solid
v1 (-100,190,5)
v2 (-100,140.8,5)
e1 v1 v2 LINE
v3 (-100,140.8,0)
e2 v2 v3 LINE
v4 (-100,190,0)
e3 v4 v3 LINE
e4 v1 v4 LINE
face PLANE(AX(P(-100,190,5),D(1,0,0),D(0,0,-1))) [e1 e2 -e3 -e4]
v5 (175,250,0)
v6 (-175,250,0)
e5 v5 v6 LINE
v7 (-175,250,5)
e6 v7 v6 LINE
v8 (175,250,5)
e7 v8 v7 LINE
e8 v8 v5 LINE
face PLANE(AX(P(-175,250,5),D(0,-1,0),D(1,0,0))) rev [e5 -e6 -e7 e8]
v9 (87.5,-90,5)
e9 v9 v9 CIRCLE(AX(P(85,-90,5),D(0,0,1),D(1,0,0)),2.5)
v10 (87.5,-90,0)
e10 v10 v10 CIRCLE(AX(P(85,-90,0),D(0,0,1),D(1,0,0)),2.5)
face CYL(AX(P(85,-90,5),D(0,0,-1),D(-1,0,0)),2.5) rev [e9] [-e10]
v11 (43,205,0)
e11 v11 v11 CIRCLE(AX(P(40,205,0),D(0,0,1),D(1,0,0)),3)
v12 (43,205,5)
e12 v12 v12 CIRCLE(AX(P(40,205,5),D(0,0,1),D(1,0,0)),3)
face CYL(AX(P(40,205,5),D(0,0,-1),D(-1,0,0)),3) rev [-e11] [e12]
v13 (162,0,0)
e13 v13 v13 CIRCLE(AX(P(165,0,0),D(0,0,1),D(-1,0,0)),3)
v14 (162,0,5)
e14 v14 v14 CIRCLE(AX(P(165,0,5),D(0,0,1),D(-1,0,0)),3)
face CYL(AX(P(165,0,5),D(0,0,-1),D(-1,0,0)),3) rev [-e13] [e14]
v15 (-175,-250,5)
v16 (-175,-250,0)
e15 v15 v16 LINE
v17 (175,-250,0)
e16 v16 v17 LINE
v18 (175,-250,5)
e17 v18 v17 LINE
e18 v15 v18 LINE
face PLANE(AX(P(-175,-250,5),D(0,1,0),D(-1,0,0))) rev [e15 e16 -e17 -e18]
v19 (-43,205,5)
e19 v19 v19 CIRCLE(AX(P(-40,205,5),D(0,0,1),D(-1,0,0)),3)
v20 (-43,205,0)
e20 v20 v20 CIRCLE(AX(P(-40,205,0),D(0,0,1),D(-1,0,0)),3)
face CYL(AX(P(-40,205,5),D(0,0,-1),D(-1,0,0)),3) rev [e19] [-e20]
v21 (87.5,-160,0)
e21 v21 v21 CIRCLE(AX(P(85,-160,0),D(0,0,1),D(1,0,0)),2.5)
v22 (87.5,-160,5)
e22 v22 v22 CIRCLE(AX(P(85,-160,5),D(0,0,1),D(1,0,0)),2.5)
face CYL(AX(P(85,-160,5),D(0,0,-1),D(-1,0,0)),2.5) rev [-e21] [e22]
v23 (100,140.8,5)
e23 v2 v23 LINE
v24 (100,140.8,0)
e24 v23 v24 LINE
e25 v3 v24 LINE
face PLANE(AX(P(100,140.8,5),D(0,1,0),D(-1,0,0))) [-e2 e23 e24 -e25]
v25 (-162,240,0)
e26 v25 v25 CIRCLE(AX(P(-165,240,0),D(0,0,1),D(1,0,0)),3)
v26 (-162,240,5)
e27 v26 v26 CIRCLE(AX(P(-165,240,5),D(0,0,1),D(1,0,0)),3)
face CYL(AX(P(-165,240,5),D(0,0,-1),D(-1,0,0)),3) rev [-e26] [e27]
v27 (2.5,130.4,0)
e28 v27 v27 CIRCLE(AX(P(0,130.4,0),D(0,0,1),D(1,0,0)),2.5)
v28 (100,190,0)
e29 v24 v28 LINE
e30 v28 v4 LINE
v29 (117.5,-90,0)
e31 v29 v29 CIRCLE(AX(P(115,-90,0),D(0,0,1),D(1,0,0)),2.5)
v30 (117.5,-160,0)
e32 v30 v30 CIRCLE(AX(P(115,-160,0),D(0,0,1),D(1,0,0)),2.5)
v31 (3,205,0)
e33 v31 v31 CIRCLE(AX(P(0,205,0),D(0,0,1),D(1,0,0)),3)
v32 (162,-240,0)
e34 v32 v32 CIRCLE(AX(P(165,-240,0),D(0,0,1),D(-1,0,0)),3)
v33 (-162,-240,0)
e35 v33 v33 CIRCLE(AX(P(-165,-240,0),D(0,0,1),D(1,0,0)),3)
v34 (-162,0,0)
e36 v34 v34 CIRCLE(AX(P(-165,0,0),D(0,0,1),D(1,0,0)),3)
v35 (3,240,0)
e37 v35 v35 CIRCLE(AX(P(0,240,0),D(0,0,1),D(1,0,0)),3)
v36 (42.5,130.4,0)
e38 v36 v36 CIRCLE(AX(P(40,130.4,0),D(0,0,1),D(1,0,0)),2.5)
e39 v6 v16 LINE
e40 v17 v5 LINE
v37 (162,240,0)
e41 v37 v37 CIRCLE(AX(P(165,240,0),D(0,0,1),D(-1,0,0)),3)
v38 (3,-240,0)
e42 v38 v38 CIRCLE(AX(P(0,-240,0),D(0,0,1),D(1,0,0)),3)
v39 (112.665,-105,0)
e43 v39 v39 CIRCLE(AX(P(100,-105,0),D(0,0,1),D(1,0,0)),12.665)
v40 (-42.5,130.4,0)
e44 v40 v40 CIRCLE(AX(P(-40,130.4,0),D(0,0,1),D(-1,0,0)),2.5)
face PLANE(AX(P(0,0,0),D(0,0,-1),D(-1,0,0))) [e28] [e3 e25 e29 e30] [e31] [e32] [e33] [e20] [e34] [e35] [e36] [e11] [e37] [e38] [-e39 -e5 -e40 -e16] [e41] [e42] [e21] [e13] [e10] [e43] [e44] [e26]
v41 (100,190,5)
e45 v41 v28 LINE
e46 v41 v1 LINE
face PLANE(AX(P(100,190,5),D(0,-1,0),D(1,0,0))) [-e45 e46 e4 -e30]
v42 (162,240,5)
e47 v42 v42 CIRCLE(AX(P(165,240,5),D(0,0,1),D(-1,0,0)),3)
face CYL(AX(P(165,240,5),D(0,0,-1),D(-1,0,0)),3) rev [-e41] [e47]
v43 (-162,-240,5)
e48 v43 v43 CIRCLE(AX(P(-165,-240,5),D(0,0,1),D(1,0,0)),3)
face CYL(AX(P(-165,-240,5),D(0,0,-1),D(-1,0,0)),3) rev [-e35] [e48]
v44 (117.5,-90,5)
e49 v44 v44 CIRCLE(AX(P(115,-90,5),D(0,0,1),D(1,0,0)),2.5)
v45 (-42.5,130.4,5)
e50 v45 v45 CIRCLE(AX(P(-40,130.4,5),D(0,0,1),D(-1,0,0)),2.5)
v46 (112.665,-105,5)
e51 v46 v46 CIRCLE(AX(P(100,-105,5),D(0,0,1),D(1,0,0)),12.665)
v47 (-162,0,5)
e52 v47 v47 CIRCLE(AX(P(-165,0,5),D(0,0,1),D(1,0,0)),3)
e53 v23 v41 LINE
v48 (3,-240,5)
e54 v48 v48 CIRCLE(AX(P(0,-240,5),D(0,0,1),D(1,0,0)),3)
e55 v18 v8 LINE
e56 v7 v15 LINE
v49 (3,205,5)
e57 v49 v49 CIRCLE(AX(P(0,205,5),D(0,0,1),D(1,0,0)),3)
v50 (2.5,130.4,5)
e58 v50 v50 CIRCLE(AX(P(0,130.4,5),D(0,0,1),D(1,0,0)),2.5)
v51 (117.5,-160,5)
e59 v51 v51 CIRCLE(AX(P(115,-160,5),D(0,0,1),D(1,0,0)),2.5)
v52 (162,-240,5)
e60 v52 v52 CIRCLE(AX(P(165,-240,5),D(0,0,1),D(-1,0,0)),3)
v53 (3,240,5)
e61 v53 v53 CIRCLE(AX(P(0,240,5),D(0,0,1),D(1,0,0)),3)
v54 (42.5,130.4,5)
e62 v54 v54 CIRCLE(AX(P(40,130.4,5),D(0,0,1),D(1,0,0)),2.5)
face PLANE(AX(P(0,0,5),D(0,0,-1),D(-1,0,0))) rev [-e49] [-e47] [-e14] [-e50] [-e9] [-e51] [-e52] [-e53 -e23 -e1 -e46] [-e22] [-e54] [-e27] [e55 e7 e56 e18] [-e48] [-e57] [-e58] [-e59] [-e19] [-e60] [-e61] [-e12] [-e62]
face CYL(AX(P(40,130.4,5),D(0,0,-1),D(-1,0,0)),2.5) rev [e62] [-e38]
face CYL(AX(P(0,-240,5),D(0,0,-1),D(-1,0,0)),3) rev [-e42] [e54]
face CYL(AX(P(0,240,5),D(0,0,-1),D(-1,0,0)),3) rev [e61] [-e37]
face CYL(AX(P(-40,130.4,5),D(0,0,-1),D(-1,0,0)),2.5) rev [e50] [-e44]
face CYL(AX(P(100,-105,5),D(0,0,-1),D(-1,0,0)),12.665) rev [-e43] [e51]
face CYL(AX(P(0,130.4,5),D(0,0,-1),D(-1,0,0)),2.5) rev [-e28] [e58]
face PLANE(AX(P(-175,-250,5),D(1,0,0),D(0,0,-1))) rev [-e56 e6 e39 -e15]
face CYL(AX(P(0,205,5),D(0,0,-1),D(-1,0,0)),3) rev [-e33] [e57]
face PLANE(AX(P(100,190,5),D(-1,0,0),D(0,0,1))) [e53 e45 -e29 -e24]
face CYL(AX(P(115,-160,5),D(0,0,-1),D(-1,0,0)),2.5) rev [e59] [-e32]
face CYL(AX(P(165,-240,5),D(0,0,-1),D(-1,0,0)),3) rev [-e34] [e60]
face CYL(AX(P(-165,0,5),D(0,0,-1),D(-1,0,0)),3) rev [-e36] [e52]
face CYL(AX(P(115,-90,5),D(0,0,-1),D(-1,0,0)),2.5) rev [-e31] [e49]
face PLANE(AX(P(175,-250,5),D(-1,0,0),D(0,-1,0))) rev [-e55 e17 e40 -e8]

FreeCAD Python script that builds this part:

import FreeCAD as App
import Part
import Sketcher
from FreeCAD import Vector

doc = App.newDocument("Part")
body = doc.addObject("PartDesign::Body", "Body")

sketch1 = body.newObject("Sketcher::SketchObject", "Sketch")
sketch1.AttachmentSupport = (doc.getObject("XY_Plane"), [""])
sketch1.MapMode = "FlatFace"
sketch1.addGeometry([
    Part.LineSegment(Vector(-175, 250, 0), Vector(-175, -250, 0)),
    Part.LineSegment(Vector(-175, -250, 0), Vector(175, -250, 0)),
    Part.LineSegment(Vector(175, -250, 0), Vector(175, 250, 0)),
    Part.LineSegment(Vector(175, 250, 0), Vector(-175, 250, 0)),
    Part.Circle(Vector(-165, -240, 0), Vector(0, 0, 1), 3),
    Part.Circle(Vector(0, -240, 0), Vector(0, 0, 1), 3),
    Part.Circle(Vector(165, -240, 0), Vector(0, 0, 1), 3),
    Part.Circle(Vector(85, -160, 0), Vector(0, 0, 1), 2.5),
    Part.Circle(Vector(115, -160, 0), Vector(0, 0, 1), 2.5),
    Part.Circle(Vector(100, -105, 0), Vector(0, 0, 1), 12.665),
    Part.Circle(Vector(85, -90, 0), Vector(0, 0, 1), 2.5),
    Part.Circle(Vector(115, -90, 0), Vector(0, 0, 1), 2.5),
    Part.Circle(Vector(-165, 0, 0), Vector(0, 0, 1), 3),
    Part.Circle(Vector(-165, 240, 0), Vector(0, 0, 1), 3),
    Part.Circle(Vector(-40, 130.4, 0), Vector(0, 0, 1), 2.5),
    Part.Circle(Vector(-40, 205, 0), Vector(0, 0, 1), 3),
    Part.Circle(Vector(165, 0, 0), Vector(0, 0, 1), 3),
    Part.Circle(Vector(0, 130.4, 0), Vector(0, 0, 1), 2.5),
    Part.Circle(Vector(40, 130.4, 0), Vector(0, 0, 1), 2.5),
    Part.LineSegment(Vector(100, 140.8, 0), Vector(-100, 140.8, 0)),
    Part.LineSegment(Vector(-100, 140.8, 0), Vector(-100, 190, 0)),
    Part.LineSegment(Vector(-100, 190, 0), Vector(100, 190, 0)),
    Part.LineSegment(Vector(100, 190, 0), Vector(100, 140.8, 0)),
    Part.Circle(Vector(0, 205, 0), Vector(0, 0, 1), 3),
    Part.Circle(Vector(40, 205, 0), Vector(0, 0, 1), 3),
    Part.Circle(Vector(0, 240, 0), Vector(0, 0, 1), 3),
    Part.Circle(Vector(165, 240, 0), Vector(0, 0, 1), 3),
], False)
sketch1.addConstraint([
    Sketcher.Constraint("Coincident", 0, 2, 1, 1),
    Sketcher.Constraint("Coincident", 1, 2, 2, 1),
    Sketcher.Constraint("Coincident", 2, 2, 3, 1),
    Sketcher.Constraint("Coincident", 3, 2, 0, 1),
    Sketcher.Constraint("Coincident", 19, 2, 20, 1),
    Sketcher.Constraint("Coincident", 20, 2, 21, 1),
    Sketcher.Constraint("Coincident", 21, 2, 22, 1),
    Sketcher.Constraint("Coincident", 22, 2, 19, 1),
    Sketcher.Constraint("Vertical", 0),
    Sketcher.Constraint("Horizontal", 1),
    Sketcher.Constraint("Vertical", 2),
    Sketcher.Constraint("Horizontal", 3),
    Sketcher.Constraint("Horizontal", 19),
    Sketcher.Constraint("Vertical", 20),
    Sketcher.Constraint("Horizontal", 21),
    Sketcher.Constraint("Vertical", 22),
    Sketcher.Constraint("Equal", 4, 5),
    Sketcher.Constraint("Equal", 5, 6),
    Sketcher.Constraint("Equal", 7, 8),
    Sketcher.Constraint("Equal", 8, 10),
    Sketcher.Constraint("Equal", 10, 11),
    Sketcher.Constraint("Equal", 6, 12),
    Sketcher.Constraint("Equal", 12, 13),
    Sketcher.Constraint("Equal", 11, 14),
    Sketcher.Constraint("Equal", 13, 15),
    Sketcher.Constraint("Equal", 15, 16),
    Sketcher.Constraint("Equal", 14, 17),
    Sketcher.Constraint("Equal", 17, 18),
    Sketcher.Constraint("Equal", 16, 23),
    Sketcher.Constraint("Equal", 23, 24),
    Sketcher.Constraint("Equal", 24, 25),
    Sketcher.Constraint("Equal", 25, 26),
    Sketcher.Constraint("Symmetric", 6, 3, 13, 3, -1, 1),
    Sketcher.Constraint("Symmetric", 12, 3, 16, 3, -1, 1),
    Sketcher.Constraint("Symmetric", 5, 3, 25, 3, -1, 1),
    Sketcher.Constraint("Symmetric", 4, 3, 26, 3, -1, 1),
    Sketcher.Constraint("Symmetric", 0, 2, 2, 2, -1, 1),
    Sketcher.Constraint("Symmetric", 4, 3, 6, 3, -2),
    Sketcher.Constraint("Symmetric", 14, 3, 18, 3, -2),
    Sketcher.Constraint("Symmetric", 15, 3, 24, 3, -2),
    Sketcher.Constraint("PointOnObject", 5, 3, -2),
    Sketcher.Constraint("PointOnObject", 12, 3, -1),
    Sketcher.Constraint("PointOnObject", 17, 3, -2),
    Sketcher.Constraint("PointOnObject", 23, 3, -2),
    Sketcher.Constraint("Horizontal", 4, 3, 5, 3),
    Sketcher.Constraint("Horizontal", 7, 3, 8, 3),
    Sketcher.Constraint("Horizontal", 10, 3, 11, 3),
    Sketcher.Constraint("Horizontal", 14, 3, 17, 3),
    Sketcher.Constraint("Horizontal", 15, 3, 23, 3),
    Sketcher.Constraint("Vertical", 7, 3, 10, 3),
    Sketcher.Constraint("Vertical", 8, 3, 11, 3),
    Sketcher.Constraint("Vertical", 4, 3, 12, 3),
    Sketcher.Constraint("Vertical", 14, 3, 15, 3),
    Sketcher.Constraint("Vertical", 9, 3, 21, 2),
    Sketcher.Constraint("Diameter", 4, 6.0),
    Sketcher.Constraint("Diameter", 7, 5.0),
    Sketcher.Constraint("Diameter", 9, 25.33),
    Sketcher.Constraint("DistanceX", 1, 1, 1, 2, 350.0),
    Sketcher.Constraint("DistanceX", 19, 2, 19, 1, 200.0),
    Sketcher.Constraint("DistanceY", 0, 2, 0, 1, 500.0),
    Sketcher.Constraint("DistanceY", 20, 1, 20, 2, 49.2),
    Sketcher.Constraint("DistanceX", 4, 3, -1, 1, 165.0),
    Sketcher.Constraint("DistanceY", 4, 3, -1, 1, 240.0),
    Sketcher.Constraint("DistanceX", -1, 1, 7, 3, 85.0),
    Sketcher.Constraint("DistanceY", 7, 3, -1, 1, 160.0),
    Sketcher.Constraint("DistanceX", -1, 1, 8, 3, 115.0),
    Sketcher.Constraint("DistanceX", -1, 1, 9, 3, 100.0),
    Sketcher.Constraint("DistanceY", 9, 3, -1, 1, 105.0),
    Sketcher.Constraint("DistanceY", 10, 3, -1, 1, 90.0),
    Sketcher.Constraint("DistanceX", 14, 3, -1, 1, 40.0),
    Sketcher.Constraint("DistanceY", -1, 1, 15, 3, 205.0),
    Sketcher.Constraint("DistanceY", -1, 1, 20, 2, 190.0),
    Sketcher.Constraint("DistanceY", -1, 1, 14, 3, 130.4),
])
pad1 = body.newObject("PartDesign::Pad", "Pad")
pad1.Profile = sketch1
pad1.Length = 5

doc.recompute()
